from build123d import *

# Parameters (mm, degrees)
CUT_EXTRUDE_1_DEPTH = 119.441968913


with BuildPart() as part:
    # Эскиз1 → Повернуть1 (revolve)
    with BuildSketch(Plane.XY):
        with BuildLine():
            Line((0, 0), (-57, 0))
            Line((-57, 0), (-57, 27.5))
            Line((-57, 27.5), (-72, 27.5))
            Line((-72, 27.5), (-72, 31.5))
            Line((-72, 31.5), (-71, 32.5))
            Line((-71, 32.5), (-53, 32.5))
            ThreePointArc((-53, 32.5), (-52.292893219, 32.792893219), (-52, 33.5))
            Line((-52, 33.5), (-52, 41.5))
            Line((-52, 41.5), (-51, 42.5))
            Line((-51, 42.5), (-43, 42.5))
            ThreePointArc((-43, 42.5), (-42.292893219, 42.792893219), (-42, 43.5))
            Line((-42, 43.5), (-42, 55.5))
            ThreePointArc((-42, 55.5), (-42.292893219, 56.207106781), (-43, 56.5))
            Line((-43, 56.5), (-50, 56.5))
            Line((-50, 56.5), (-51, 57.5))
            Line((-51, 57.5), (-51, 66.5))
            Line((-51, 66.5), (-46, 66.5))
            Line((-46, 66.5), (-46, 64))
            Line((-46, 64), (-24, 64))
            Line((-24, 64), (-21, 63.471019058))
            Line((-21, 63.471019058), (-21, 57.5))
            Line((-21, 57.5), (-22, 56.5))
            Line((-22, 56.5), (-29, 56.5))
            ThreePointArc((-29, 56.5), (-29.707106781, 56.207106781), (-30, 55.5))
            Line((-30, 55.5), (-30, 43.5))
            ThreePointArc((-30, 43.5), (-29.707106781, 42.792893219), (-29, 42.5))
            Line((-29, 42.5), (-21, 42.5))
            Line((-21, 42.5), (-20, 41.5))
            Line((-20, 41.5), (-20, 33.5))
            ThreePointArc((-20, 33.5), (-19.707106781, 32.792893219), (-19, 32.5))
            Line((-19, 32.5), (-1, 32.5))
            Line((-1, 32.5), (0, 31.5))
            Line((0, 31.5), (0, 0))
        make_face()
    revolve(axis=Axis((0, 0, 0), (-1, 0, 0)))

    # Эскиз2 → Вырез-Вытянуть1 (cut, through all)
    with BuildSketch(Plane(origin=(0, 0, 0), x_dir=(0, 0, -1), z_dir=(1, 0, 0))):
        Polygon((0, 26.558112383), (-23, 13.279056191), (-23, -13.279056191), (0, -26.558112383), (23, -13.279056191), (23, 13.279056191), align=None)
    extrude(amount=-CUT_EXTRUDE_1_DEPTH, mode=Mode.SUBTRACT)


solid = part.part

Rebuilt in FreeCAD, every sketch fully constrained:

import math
import FreeCAD as App
import Part
import Sketcher
from FreeCAD import Vector
Q = App.Units.Quantity


def add_polygon(sketch, points):
    """Adds a closed chain of lines whose ends are joined by coincident constraints."""
    first, n = sketch.GeometryCount, len(points)
    for a, b in zip(points, points[1:] + points[:1]):
        sketch.addGeometry(Part.LineSegment(App.Vector(*a, 0), App.Vector(*b, 0)), False)
    for i in range(n):
        sketch.addConstraint(Sketcher.Constraint("Coincident", first + i, 2, first + (i + 1) % n, 1))

doc = App.newDocument("Part")
params = doc.addObject("Spreadsheet::Sheet", "Params")
for row, (alias, value) in enumerate([
    ("sketch1_radius", "1 mm"),
    ("sketch1_width", "57 mm"),
    ("sketch1_width2", "18 mm"),
    ("sketch1_width3", "8 mm"),
    ("sketch1_width4", "7 mm"),
    ("revolution_angle", "360 deg"),
], start=1):
    params.set(f"A{row}", alias)
    params.set(f"B{row}", "=" + value)
    params.setAlias(f"B{row}", alias)

body = doc.addObject("PartDesign::Body", "Body")

# Sketch on XY plane
sketch1 = body.newObject("Sketcher::SketchObject", "Sketch")
sketch1.AttachmentSupport = (doc.getObject("XY_Plane"), [""])
sketch1.MapMode = "FlatFace"
sketch1.addGeometry(Part.LineSegment(Vector(-57, 0, 0), Vector(0, 0, 0)), False)
sketch1.addGeometry(Part.LineSegment(Vector(0, 0, 0), Vector(0, 31.5, 0)), False)
sketch1.addGeometry(Part.LineSegment(Vector(0, 31.5, 0), Vector(-1, 32.5, 0)), False)
sketch1.addGeometry(Part.LineSegment(Vector(-1, 32.5, 0), Vector(-19, 32.5, 0)), False)
sketch1.addGeometry(Part.ArcOfCircle(Part.Circle(Vector(-19, 33.5, 0), Vector(0, 0, 1), 1), math.radians(-180), math.radians(-90)), False)
sketch1.addGeometry(Part.LineSegment(Vector(-20, 33.5, 0), Vector(-20, 41.5, 0)), False)
sketch1.addGeometry(Part.LineSegment(Vector(-20, 41.5, 0), Vector(-21, 42.5, 0)), False)
sketch1.addGeometry(Part.LineSegment(Vector(-21, 42.5, 0), Vector(-29, 42.5, 0)), False)
sketch1.addGeometry(Part.ArcOfCircle(Part.Circle(Vector(-29, 43.5, 0), Vector(0, 0, 1), 1), math.radians(-180), math.radians(-90)), False)
sketch1.addGeometry(Part.LineSegment(Vector(-30, 43.5, 0), Vector(-30, 55.5, 0)), False)
sketch1.addGeometry(Part.ArcOfCircle(Part.Circle(Vector(-29, 55.5, 0), Vector(0, 0, 1), 1), math.radians(90), math.radians(180)), False)
sketch1.addGeometry(Part.LineSegment(Vector(-29, 56.5, 0), Vector(-22, 56.5, 0)), False)
sketch1.addGeometry(Part.LineSegment(Vector(-22, 56.5, 0), Vector(-21, 57.5, 0)), False)
sketch1.addGeometry(Part.LineSegment(Vector(-21, 57.5, 0), Vector(-21, 63.5, 0)), False)
sketch1.addGeometry(Part.LineSegment(Vector(-21, 63.5, 0), Vector(-24, 64, 0)), False)
sketch1.addGeometry(Part.LineSegment(Vector(-24, 64, 0), Vector(-46, 64, 0)), False)
sketch1.addGeometry(Part.LineSegment(Vector(-46, 64, 0), Vector(-46, 66.5, 0)), False)
sketch1.addGeometry(Part.LineSegment(Vector(-46, 66.5, 0), Vector(-51, 66.5, 0)), False)
sketch1.addGeometry(Part.LineSegment(Vector(-51, 66.5, 0), Vector(-51, 57.5, 0)), False)
sketch1.addGeometry(Part.LineSegment(Vector(-51, 57.5, 0), Vector(-50, 56.5, 0)), False)
sketch1.addGeometry(Part.LineSegment(Vector(-50, 56.5, 0), Vector(-43, 56.5, 0)), False)
sketch1.addGeometry(Part.ArcOfCircle(Part.Circle(Vector(-43, 55.5, 0), Vector(0, 0, 1), 1), math.radians(0), math.radians(90)), False)
sketch1.addGeometry(Part.LineSegment(Vector(-42, 55.5, 0), Vector(-42, 43.5, 0)), False)
sketch1.addGeometry(Part.ArcOfCircle(Part.Circle(Vector(-43, 43.5, 0), Vector(0, 0, 1), 1), math.radians(-90), math.radians(0)), False)
sketch1.addGeometry(Part.LineSegment(Vector(-43, 42.5, 0), Vector(-51, 42.5, 0)), False)
sketch1.addGeometry(Part.LineSegment(Vector(-51, 42.5, 0), Vector(-52, 41.5, 0)), False)
sketch1.addGeometry(Part.LineSegment(Vector(-52, 41.5, 0), Vector(-52, 33.5, 0)), False)
sketch1.addGeometry(Part.ArcOfCircle(Part.Circle(Vector(-53, 33.5, 0), Vector(0, 0, 1), 1), math.radians(-90), math.radians(0)), False)
sketch1.addGeometry(Part.LineSegment(Vector(-53, 32.5, 0), Vector(-71, 32.5, 0)), False)
sketch1.addGeometry(Part.LineSegment(Vector(-71, 32.5, 0), Vector(-72, 31.5, 0)), False)
sketch1.addGeometry(Part.LineSegment(Vector(-72, 31.5, 0), Vector(-72, 27.5, 0)), False)
sketch1.addGeometry(Part.LineSegment(Vector(-72, 27.5, 0), Vector(-57, 27.5, 0)), False)
sketch1.addGeometry(Part.LineSegment(Vector(-57, 27.5, 0), Vector(-57, 0, 0)), False)
sketch1.addConstraint(Sketcher.Constraint("Coincident", 0, 2, 1, 1))
sketch1.addConstraint(Sketcher.Constraint("Coincident", 1, 2, 2, 1))
sketch1.addConstraint(Sketcher.Constraint("Coincident", 2, 2, 3, 1))
sketch1.addConstraint(Sketcher.Constraint("Tangent", 3, 2, 4, 2))
sketch1.addConstraint(Sketcher.Constraint("Tangent", 4, 1, 5, 1))
sketch1.addConstraint(Sketcher.Constraint("Coincident", 5, 2, 6, 1))
sketch1.addConstraint(Sketcher.Constraint("Coincident", 6, 2, 7, 1))
sketch1.addConstraint(Sketcher.Constraint("Tangent", 7, 2, 8, 2))
sketch1.addConstraint(Sketcher.Constraint("Tangent", 8, 1, 9, 1))
sketch1.addConstraint(Sketcher.Constraint("Tangent", 9, 2, 10, 2))
sketch1.addConstraint(Sketcher.Constraint("Tangent", 10, 1, 11, 1))
sketch1.addConstraint(Sketcher.Constraint("Coincident", 11, 2, 12, 1))
sketch1.addConstraint(Sketcher.Constraint("Coincident", 12, 2, 13, 1))
sketch1.addConstraint(Sketcher.Constraint("Coincident", 13, 2, 14, 1))
sketch1.addConstraint(Sketcher.Constraint("Coincident", 14, 2, 15, 1))
sketch1.addConstraint(Sketcher.Constraint("Coincident", 15, 2, 16, 1))
sketch1.addConstraint(Sketcher.Constraint("Coincident", 16, 2, 17, 1))
sketch1.addConstraint(Sketcher.Constraint("Coincident", 17, 2, 18, 1))
sketch1.addConstraint(Sketcher.Constraint("Coincident", 18, 2, 19, 1))
sketch1.addConstraint(Sketcher.Constraint("Coincident", 19, 2, 20, 1))
sketch1.addConstraint(Sketcher.Constraint("Tangent", 20, 2, 21, 2))
sketch1.addConstraint(Sketcher.Constraint("Tangent", 21, 1, 22, 1))
sketch1.addConstraint(Sketcher.Constraint("Tangent", 22, 2, 23, 2))
sketch1.addConstraint(Sketcher.Constraint("Tangent", 23, 1, 24, 1))
sketch1.addConstraint(Sketcher.Constraint("Coincident", 24, 2, 25, 1))
sketch1.addConstraint(Sketcher.Constraint("Coincident", 25, 2, 26, 1))
sketch1.addConstraint(Sketcher.Constraint("Tangent", 26, 2, 27, 2))
sketch1.addConstraint(Sketcher.Constraint("Tangent", 27, 1, 28, 1))
sketch1.addConstraint(Sketcher.Constraint("Coincident", 28, 2, 29, 1))
sketch1.addConstraint(Sketcher.Constraint("Coincident", 29, 2, 30, 1))
sketch1.addConstraint(Sketcher.Constraint("Coincident", 30, 2, 31, 1))
sketch1.addConstraint(Sketcher.Constraint("Coincident", 31, 2, 32, 1))
sketch1.addConstraint(Sketcher.Constraint("Coincident", 32, 2, 0, 1))
sketch1.addConstraint(Sketcher.Constraint("Horizontal", 0))
sketch1.addConstraint(Sketcher.Constraint("Vertical", 1))
sketch1.addConstraint(Sketcher.Constraint("Horizontal", 3))
sketch1.addConstraint(Sketcher.Constraint("Vertical", 5))
sketch1.addConstraint(Sketcher.Constraint("Horizontal", 7))
sketch1.addConstraint(Sketcher.Constraint("Vertical", 9))
sketch1.addConstraint(Sketcher.Constraint("Horizontal", 11))
sketch1.addConstraint(Sketcher.Constraint("Vertical", 13))
sketch1.addConstraint(Sketcher.Constraint("Horizontal", 15))
sketch1.addConstraint(Sketcher.Constraint("Vertical", 16))
sketch1.addConstraint(Sketcher.Constraint("Horizontal", 17))
sketch1.addConstraint(Sketcher.Constraint("Vertical", 18))
sketch1.addConstraint(Sketcher.Constraint("Horizontal", 20))
sketch1.addConstraint(Sketcher.Constraint("Vertical", 22))
sketch1.addConstraint(Sketcher.Constraint("Horizontal", 24))
sketch1.addConstraint(Sketcher.Constraint("Vertical", 26))
sketch1.addConstraint(Sketcher.Constraint("Horizontal", 28))
sketch1.addConstraint(Sketcher.Constraint("Vertical", 30))
sketch1.addConstraint(Sketcher.Constraint("Horizontal", 31))
sketch1.addConstraint(Sketcher.Constraint("Vertical", 32))
sketch1.addConstraint(Sketcher.Constraint("Coincident", 0, 2, -1, 1))
sketch1.addConstraint(Sketcher.Constraint("Equal", 4, 8))
sketch1.addConstraint(Sketcher.Constraint("Equal", 8, 10))
sketch1.addConstraint(Sketcher.Constraint("Equal", 10, 21))
sketch1.addConstraint(Sketcher.Constraint("Equal", 21, 23))
sketch1.addConstraint(Sketcher.Constraint("Equal", 23, 27))
sketch1.addConstraint(Sketcher.Constraint("Parallel", 2, 6))
sketch1.addConstraint(Sketcher.Constraint("Perpendicular", 6, 12))
sketch1.addConstraint(Sketcher.Constraint("Perpendicular", 12, 19))
sketch1.addConstraint(Sketcher.Constraint("Perpendicular", 19, 25))
sketch1.addConstraint(Sketcher.Constraint("Parallel", 25, 29))
sketch1.addConstraint(Sketcher.Constraint("Horizontal", 10, 3, 21, 3))
sketch1.addConstraint(Sketcher.Constraint("Horizontal", 8, 3, 23, 3))
sketch1.addConstraint(Sketcher.Constraint("Horizontal", 4, 3, 27, 3))
sketch1.addConstraint(Sketcher.Constraint("Horizontal", 12, 2, 18, 2))
sketch1.addConstraint(Sketcher.Constraint("Horizontal", 5, 2, 25, 2))
sketch1.addConstraint(Sketcher.Constraint("Horizontal", 1, 2, 29, 2))
sketch1.addConstraint(Sketcher.Constraint("Vertical", 6, 2, 12, 2))
sketch1.addConstraint(Sketcher.Constraint("Vertical", 18, 2, 24, 2))
sketch1.addConstraint(Sketcher.Constraint("Equal", 11, 20))
sketch1.addConstraint(Sketcher.Constraint("Equal", 7, 24))
sketch1.addConstraint(Sketcher.Constraint("Equal", 3, 28))
sketch1.addConstraint(Sketcher.Constraint("Equal", 24, 5))
sketch1.addConstraint(Sketcher.Constraint("Equal", 2, 6))
sketch1.addConstraint(Sketcher.Constraint("Equal", 6, 12))
sketch1.addConstraint(Sketcher.Constraint("Radius", 4, 1.0))
sketch1.addConstraint(Sketcher.Constraint("DistanceX", 0, 1, 0, 2, 57.0))
sketch1.addConstraint(Sketcher.Constraint("DistanceX", 3, 2, 3, 1, 18.0))
sketch1.addConstraint(Sketcher.Constraint("DistanceX", 7, 2, 7, 1, 8.0))
sketch1.addConstraint(Sketcher.Constraint("DistanceX", 11, 1, 11, 2, 7.0))
sketch1.addConstraint(Sketcher.Constraint("DistanceX", 15, 2, 15, 1, 22.0))
sketch1.addConstraint(Sketcher.Constraint("DistanceX", 17, 2, 17, 1, 5.0))
sketch1.addConstraint(Sketcher.Constraint("DistanceX", 31, 1, 31, 2, 15.0))
sketch1.addConstraint(Sketcher.Constraint("DistanceY", 9, 1, 9, 2, 12.0))
sketch1.addConstraint(Sketcher.Constraint("DistanceY", 18, 2, 18, 1, 9.0))
sketch1.addConstraint(Sketcher.Constraint("DistanceY", 30, 2, 30, 1, 4.0))
sketch1.addConstraint(Sketcher.Constraint("Angle", 14, Q("170 deg")))
sketch1.addConstraint(Sketcher.Constraint("DistanceY", 1, 1, 1, 2, 31.5))
sketch1.addConstraint(Sketcher.Constraint("DistanceY", 16, 1, 16, 2, 2.5))
sketch1.setExpression("Constraints[78]", "Params.sketch1_radius")
sketch1.setExpression("Constraints[79]", "Params.sketch1_width")
sketch1.setExpression("Constraints[80]", "Params.sketch1_width2")
sketch1.setExpression("Constraints[81]", "Params.sketch1_width3")
sketch1.setExpression("Constraints[82]", "Params.sketch1_width4")
revolution = body.newObject("PartDesign::Revolution", "Revolution")
revolution.Profile = sketch1
revolution.ReferenceAxis = (sketch1, ["H_Axis"])
revolution.setExpression("Angle", "Params.revolution_angle")

# Sketch on YZ plane
sketch2 = body.newObject("Sketcher::SketchObject", "Sketch001")
sketch2.AttachmentSupport = (doc.getObject("YZ_Plane"), [""])
sketch2.MapMode = "FlatFace"
add_polygon(sketch2, [(27, 0), (13, 23), (-13, 23), (-27, 0), (-13, -23), (13, -23)])  # lines 0-5
sketch2.addConstraint(Sketcher.Constraint("Horizontal", 1))
sketch2.addConstraint(Sketcher.Constraint("Horizontal", 4))
sketch2.addConstraint(Sketcher.Constraint("Symmetric", 0, 2, 3, 2, -1, 1))
sketch2.addConstraint(Sketcher.Constraint("Symmetric", 2, 2, 5, 2, -1, 1))
sketch2.addConstraint(Sketcher.Constraint("PointOnObject", 2, 2, -1))
sketch2.addConstraint(Sketcher.Constraint("Parallel", 2, 5))
sketch2.addConstraint(Sketcher.Constraint("Vertical", 1, 2, 3, 2))
sketch2.addConstraint(Sketcher.Constraint("Angle", 0, Q("120 deg")))
sketch2.addConstraint(Sketcher.Constraint("DistanceY", -1, 1, 0, 2, 23.0))
sketch2.addConstraint(Sketcher.Constraint("DistanceX", 1, 2, 1, 1, 26.558112))
pocket1 = body.newObject("PartDesign::Pocket", "Pocket")
pocket1.Profile = sketch2
pocket1.Type = "ThroughAll"

doc.recompute()
